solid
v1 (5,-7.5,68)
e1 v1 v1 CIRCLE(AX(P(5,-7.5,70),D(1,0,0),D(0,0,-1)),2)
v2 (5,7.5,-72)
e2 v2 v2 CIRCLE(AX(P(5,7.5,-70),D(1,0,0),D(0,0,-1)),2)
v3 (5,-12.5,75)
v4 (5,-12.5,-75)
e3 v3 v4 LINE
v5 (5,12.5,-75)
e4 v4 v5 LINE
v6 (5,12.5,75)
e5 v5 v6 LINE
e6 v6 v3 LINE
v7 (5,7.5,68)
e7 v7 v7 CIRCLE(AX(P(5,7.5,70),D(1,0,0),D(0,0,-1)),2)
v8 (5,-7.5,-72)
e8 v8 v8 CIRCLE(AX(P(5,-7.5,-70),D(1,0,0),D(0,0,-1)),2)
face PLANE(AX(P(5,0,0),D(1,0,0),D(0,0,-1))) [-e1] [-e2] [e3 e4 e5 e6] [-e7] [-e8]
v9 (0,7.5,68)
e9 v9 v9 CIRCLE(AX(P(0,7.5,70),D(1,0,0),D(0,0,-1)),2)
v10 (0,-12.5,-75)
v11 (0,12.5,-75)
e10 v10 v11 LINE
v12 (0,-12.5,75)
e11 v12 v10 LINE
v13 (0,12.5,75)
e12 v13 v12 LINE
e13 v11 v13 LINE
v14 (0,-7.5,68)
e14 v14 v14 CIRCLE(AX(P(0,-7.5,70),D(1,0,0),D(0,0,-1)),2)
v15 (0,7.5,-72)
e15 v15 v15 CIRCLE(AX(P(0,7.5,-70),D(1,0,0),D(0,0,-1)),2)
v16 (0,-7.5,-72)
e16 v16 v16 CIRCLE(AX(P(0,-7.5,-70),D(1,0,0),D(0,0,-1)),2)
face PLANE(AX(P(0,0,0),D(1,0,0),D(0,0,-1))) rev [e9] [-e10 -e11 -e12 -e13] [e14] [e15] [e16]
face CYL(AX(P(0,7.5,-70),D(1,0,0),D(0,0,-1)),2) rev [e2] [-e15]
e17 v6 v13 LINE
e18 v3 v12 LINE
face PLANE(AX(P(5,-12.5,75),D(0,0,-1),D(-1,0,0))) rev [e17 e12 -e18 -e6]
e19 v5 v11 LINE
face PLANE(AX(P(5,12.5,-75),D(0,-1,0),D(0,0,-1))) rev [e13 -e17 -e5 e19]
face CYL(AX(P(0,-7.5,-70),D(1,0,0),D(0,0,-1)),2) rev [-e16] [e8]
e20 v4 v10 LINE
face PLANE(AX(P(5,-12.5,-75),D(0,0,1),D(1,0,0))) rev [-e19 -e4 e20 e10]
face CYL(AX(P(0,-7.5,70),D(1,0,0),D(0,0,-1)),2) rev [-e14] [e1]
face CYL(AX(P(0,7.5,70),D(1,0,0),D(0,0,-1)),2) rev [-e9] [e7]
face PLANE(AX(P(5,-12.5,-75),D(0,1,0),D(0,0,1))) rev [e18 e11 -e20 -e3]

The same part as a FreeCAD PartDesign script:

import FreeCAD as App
import Part
import Sketcher

doc = App.newDocument("Part")
body = doc.addObject("PartDesign::Body", "Body")

# Sketch on YZ plane
sketch1 = body.newObject("Sketcher::SketchObject", "Sketch")
sketch1.AttachmentSupport = (doc.getObject("YZ_Plane"), [""])
sketch1.MapMode = "FlatFace"
sketch1.addGeometry([
    Part.LineSegment(App.Vector(12.5, 75, 0), App.Vector(-12.5, 75, 0)),
    Part.LineSegment(App.Vector(-12.5, 75, 0), App.Vector(-12.5, -75, 0)),
    Part.LineSegment(App.Vector(-12.5, -75, 0), App.Vector(12.5, -75, 0)),
    Part.LineSegment(App.Vector(12.5, -75, 0), App.Vector(12.5, 75, 0)),
], False)
sketch1.addConstraint([
    Sketcher.Constraint("Coincident", 0, 2, 1, 1),
    Sketcher.Constraint("Coincident", 1, 2, 2, 1),
    Sketcher.Constraint("Coincident", 2, 2, 3, 1),
    Sketcher.Constraint("Coincident", 3, 2, 0, 1),
    Sketcher.Constraint("Horizontal", 0),
    Sketcher.Constraint("Vertical", 1),
    Sketcher.Constraint("Horizontal", 2),
    Sketcher.Constraint("Vertical", 3),
    Sketcher.Constraint("Symmetric", 0, 2, 2, 2, -1, 1),
    Sketcher.Constraint("DistanceX", 0, 2, 0, 1, 25.0),
    Sketcher.Constraint("DistanceY", 1, 2, 1, 1, 150.0),
])
pad1 = body.newObject("PartDesign::Pad", "Pad")
pad1.Profile = sketch1
pad1.Length = 5

# Sketch on YZ plane
sketch2 = body.newObject("Sketcher::SketchObject", "Sketch001")
sketch2.AttachmentSupport = (doc.getObject("YZ_Plane"), [""])
sketch2.MapMode = "FlatFace"
sketch2.AttachmentOffset = App.Placement(App.Vector(0, 0, 5), App.Rotation())
sketch2.addGeometry([
    Part.Circle(App.Vector(7.5, 70, 0), App.Vector(0, 0, 1), 2),
    Part.Circle(App.Vector(-7.5, 70, 0), App.Vector(0, 0, 1), 2),
    Part.Circle(App.Vector(-7.5, -70, 0), App.Vector(0, 0, 1), 2),
    Part.Circle(App.Vector(7.5, -70, 0), App.Vector(0, 0, 1), 2),
], False)
sketch2.addConstraint([
    Sketcher.Constraint("Equal", 0, 1),
    Sketcher.Constraint("Equal", 1, 2),
    Sketcher.Constraint("Equal", 2, 3),
    Sketcher.Constraint("Symmetric", 0, 3, 2, 3, -1, 1),
    Sketcher.Constraint("Symmetric", 1, 3, 3, 3, -1, 1),
    Sketcher.Constraint("Symmetric", 0, 3, 1, 3, -2),
    Sketcher.Constraint("Diameter", 0, 4.0),
    Sketcher.Constraint("DistanceY", -1, 1, 0, 3, 70.0),
    Sketcher.Constraint("DistanceX", 1, 3, 0, 3, 15.0),
])
pocket1 = body.newObject("PartDesign::Pocket", "Pocket")
pocket1.Profile = sketch2
pocket1.Length = 5

doc.recompute()
